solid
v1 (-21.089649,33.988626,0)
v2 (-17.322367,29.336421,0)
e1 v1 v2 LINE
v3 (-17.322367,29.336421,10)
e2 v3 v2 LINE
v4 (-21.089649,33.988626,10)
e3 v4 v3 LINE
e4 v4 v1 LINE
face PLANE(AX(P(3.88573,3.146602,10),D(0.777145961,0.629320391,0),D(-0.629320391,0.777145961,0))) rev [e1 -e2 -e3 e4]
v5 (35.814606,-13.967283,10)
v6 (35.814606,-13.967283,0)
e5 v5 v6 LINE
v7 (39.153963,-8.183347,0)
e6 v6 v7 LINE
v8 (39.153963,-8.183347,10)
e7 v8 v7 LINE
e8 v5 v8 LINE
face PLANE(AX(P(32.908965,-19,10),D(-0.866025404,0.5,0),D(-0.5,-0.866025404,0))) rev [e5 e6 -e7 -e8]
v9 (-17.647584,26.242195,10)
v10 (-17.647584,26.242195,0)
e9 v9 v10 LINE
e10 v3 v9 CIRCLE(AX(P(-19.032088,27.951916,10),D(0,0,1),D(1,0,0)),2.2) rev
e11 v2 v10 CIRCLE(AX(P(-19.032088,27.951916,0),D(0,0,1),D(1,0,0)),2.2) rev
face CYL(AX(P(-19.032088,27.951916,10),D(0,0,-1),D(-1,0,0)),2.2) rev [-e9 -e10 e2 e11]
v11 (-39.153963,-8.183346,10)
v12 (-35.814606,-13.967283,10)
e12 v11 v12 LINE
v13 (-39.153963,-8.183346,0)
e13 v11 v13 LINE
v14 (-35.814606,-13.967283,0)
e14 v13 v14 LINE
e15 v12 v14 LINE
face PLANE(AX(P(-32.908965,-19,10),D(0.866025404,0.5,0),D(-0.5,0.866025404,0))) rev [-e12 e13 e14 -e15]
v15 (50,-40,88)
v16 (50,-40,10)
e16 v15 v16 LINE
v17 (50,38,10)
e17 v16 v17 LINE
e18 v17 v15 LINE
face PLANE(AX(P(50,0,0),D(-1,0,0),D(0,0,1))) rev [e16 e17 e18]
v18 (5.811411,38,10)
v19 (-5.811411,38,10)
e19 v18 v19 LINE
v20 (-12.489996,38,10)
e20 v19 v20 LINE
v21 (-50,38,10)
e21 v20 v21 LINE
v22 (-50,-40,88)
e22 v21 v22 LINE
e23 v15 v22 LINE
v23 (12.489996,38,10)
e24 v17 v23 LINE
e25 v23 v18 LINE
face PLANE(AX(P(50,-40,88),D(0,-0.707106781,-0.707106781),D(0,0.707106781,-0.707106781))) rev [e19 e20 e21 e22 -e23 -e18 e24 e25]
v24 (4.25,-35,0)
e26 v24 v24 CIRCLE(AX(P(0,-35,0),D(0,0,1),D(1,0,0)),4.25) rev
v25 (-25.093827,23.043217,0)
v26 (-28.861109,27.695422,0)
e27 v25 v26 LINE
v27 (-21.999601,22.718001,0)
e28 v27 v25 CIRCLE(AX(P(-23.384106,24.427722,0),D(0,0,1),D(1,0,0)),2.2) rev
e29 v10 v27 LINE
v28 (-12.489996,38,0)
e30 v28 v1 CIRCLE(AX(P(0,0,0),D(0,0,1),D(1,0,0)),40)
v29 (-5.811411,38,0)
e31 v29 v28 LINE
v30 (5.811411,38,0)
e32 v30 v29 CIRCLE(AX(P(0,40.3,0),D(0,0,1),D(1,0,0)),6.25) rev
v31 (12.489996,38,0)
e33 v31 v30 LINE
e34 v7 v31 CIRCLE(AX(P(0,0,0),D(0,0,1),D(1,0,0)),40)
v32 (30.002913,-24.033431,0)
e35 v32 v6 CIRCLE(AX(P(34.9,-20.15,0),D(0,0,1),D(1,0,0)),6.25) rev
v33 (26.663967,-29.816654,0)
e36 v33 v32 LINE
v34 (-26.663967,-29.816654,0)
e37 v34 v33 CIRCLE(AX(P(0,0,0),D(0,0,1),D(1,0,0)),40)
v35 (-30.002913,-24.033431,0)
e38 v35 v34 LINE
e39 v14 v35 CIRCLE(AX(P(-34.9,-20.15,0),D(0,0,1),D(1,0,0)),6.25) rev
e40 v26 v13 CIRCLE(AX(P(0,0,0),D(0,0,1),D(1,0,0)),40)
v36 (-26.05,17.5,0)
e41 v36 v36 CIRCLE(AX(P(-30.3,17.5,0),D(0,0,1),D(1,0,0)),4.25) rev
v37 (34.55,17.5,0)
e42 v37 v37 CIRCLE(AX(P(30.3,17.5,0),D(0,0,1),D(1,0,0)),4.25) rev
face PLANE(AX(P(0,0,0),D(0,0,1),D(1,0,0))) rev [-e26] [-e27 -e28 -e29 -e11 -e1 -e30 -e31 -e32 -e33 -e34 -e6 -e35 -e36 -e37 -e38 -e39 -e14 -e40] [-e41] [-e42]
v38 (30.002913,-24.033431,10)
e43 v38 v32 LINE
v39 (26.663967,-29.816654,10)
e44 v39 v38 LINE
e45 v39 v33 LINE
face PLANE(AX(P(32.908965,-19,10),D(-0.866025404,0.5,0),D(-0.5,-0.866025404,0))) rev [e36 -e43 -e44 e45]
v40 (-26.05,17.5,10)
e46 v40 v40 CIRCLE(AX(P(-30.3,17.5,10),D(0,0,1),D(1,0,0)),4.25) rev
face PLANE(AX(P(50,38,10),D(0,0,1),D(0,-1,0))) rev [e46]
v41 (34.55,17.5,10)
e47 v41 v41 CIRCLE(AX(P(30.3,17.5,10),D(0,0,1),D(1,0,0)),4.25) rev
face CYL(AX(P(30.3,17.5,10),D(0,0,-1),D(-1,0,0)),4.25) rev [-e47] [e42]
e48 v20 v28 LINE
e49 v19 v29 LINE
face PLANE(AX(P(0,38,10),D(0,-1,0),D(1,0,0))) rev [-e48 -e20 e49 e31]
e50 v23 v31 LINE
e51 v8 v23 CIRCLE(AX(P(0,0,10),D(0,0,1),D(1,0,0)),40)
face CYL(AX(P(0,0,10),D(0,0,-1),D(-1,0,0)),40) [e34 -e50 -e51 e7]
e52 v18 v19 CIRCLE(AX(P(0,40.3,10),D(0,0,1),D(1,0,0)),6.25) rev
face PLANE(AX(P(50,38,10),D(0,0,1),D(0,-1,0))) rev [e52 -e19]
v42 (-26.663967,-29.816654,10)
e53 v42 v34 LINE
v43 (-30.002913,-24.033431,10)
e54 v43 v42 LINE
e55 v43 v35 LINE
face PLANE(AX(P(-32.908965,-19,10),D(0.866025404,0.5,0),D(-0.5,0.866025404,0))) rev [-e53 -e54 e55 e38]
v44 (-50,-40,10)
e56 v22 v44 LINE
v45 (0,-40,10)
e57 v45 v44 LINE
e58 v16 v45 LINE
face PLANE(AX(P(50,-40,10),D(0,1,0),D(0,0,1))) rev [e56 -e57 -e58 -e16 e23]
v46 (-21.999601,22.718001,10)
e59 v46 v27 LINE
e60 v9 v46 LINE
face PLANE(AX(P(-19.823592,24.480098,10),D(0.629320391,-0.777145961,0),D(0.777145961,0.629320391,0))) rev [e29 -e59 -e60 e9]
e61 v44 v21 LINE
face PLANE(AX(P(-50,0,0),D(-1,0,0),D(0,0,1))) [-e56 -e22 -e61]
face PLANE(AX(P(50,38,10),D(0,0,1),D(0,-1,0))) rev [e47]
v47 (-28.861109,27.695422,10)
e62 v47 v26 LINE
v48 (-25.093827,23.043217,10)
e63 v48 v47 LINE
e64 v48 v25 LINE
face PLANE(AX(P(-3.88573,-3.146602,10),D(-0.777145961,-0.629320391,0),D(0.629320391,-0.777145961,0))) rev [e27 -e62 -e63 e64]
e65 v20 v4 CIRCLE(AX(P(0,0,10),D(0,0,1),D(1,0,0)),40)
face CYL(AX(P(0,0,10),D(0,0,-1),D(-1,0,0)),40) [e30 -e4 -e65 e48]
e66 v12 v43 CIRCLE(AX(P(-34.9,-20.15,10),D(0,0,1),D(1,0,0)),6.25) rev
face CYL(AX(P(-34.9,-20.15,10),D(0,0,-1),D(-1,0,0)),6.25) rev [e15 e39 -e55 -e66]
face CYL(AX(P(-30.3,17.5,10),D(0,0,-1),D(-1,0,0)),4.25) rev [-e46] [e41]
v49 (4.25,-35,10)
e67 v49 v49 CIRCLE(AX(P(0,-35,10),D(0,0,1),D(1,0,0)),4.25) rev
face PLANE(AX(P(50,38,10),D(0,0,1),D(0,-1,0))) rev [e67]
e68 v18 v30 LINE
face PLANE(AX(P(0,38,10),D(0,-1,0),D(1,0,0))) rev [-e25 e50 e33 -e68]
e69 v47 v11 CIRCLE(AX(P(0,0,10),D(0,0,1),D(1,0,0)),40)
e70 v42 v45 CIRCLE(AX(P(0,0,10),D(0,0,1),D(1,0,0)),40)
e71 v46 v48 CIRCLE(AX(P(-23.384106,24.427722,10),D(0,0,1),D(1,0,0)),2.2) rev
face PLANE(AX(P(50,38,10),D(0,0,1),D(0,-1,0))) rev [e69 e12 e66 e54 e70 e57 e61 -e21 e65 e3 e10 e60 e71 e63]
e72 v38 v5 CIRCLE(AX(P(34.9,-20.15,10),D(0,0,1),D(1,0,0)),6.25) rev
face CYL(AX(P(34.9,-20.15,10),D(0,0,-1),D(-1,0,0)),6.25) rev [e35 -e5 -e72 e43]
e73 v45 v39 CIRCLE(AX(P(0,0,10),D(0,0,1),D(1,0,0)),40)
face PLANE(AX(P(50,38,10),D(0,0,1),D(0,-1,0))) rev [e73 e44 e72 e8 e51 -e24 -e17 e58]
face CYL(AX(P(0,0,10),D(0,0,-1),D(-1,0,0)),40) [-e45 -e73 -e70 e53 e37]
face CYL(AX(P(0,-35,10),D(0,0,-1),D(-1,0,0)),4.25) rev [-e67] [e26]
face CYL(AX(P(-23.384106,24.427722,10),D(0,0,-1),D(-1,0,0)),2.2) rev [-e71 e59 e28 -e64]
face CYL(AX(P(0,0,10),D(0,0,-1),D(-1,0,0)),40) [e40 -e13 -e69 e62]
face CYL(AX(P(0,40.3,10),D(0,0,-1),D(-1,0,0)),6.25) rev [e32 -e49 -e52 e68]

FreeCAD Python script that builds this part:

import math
import FreeCAD as App
import Part
import Sketcher

V = App.Vector
Q = App.Units.Quantity


def add_polygon(sketch, points):
    """Adds a closed chain of lines whose ends are joined by coincident constraints."""
    first, n = sketch.GeometryCount, len(points)
    for a, b in zip(points, points[1:] + points[:1]):
        sketch.addGeometry(Part.LineSegment(App.Vector(*a, 0), App.Vector(*b, 0)), False)
    for i in range(n):
        sketch.addConstraint(Sketcher.Constraint("Coincident", first + i, 2, first + (i + 1) % n, 1))

doc = App.newDocument("Part")
params = doc.addObject("Spreadsheet::Sheet", "Params")
for row, (alias, value) in enumerate([
    ("sketch1_radius", "40 mm"),
    ("sketch1_diameter", "8.5 mm"),
    ("sketch1_radius2", "2.2 mm"),
    ("sketch1_radius3", "6.25 mm"),
    ("sketch1_length", "5.6 mm"),
    ("pad1_length", "10 mm"),
    ("sketch2_width", "78 mm"),
    ("pad2_length", "100 mm"),
], start=1):
    params.set(f"A{row}", alias)
    params.set(f"B{row}", "=" + value)
    params.setAlias(f"B{row}", alias)

body = doc.addObject("PartDesign::Body", "Body")

sketch1 = body.newObject("Sketcher::SketchObject", "Sketch")
sketch1.AttachmentSupport = (doc.getObject("XY_Plane"), [""])
sketch1.MapMode = "FlatFace"
sketch1.addGeometry(Part.ArcOfCircle(Part.Circle(V(0, 40.3, 0), V(0, 0, 1), 6.2), math.radians(-158), math.radians(-22)), False)
sketch1.addGeometry(Part.LineSegment(V(-5.8, 38, 0), V(-12.5, 38, 0)), False)
sketch1.addGeometry(Part.ArcOfCircle(Part.Circle(V(0, 0, 0), V(0, 0, 1), 40), math.radians(108.19), math.radians(121.82)), False)
sketch1.addGeometry(Part.LineSegment(V(-21.1, 34, 0), V(-17.3, 29.3, 0)), False)
sketch1.addGeometry(Part.ArcOfCircle(Part.Circle(V(-19, 28, 0), V(0, 0, 1), 2.2), math.radians(-51), math.radians(39)), False)
sketch1.addGeometry(Part.LineSegment(V(-17.6, 26.2, 0), V(-22, 22.7, 0)), False)
sketch1.addGeometry(Part.ArcOfCircle(Part.Circle(V(-23.4, 24.4, 0), V(0, 0, 1), 2.2), math.radians(-141), math.radians(-51)), False)
sketch1.addGeometry(Part.LineSegment(V(-25.1, 23, 0), V(-28.9, 27.7, 0)), False)
sketch1.addGeometry(Part.ArcOfCircle(Part.Circle(V(0, 0, 0), V(0, 0, 1), 40), math.radians(136), math.radians(192)), False)
sketch1.addGeometry(Part.LineSegment(V(-39.2, -8.2, 0), V(-35.8, -14, 0)), False)
sketch1.addGeometry(Part.ArcOfCircle(Part.Circle(V(-34.9, -20.1, 0), V(0, 0, 1), 6.2), math.radians(-38), math.radians(98)), False)
sketch1.addGeometry(Part.LineSegment(V(-30, -24, 0), V(-26.7, -29.8, 0)), False)
sketch1.addGeometry(Part.ArcOfCircle(Part.Circle(V(0, 0, 0), V(0, 0, 1), 40), math.radians(-132), math.radians(-48)), False)
sketch1.addGeometry(Part.LineSegment(V(26.7, -29.8, 0), V(30, -24, 0)), False)
sketch1.addGeometry(Part.ArcOfCircle(Part.Circle(V(34.9, -20.1, 0), V(0, 0, 1), 6.2), math.radians(82), math.radians(218)), False)
sketch1.addGeometry(Part.LineSegment(V(35.8, -14, 0), V(39.2, -8.2, 0)), False)
sketch1.addGeometry(Part.ArcOfCircle(Part.Circle(V(0, 0, 0), V(0, 0, 1), 40), math.radians(-12), math.radians(72)), False)
sketch1.addGeometry(Part.LineSegment(V(12.5, 38, 0), V(5.8, 38, 0)), False)
sketch1.addGeometry(Part.Circle(V(0, -35, 0), V(0, 0, 1), 4.2), False)
sketch1.addGeometry(Part.Circle(V(-30.3, 17.5, 0), V(0, 0, 1), 4.2), False)
sketch1.addGeometry(Part.Circle(V(30.3, 17.5, 0), V(0, 0, 1), 4.2), False)
sketch1.addConstraint(Sketcher.Constraint("Coincident", 0, 1, 1, 1))
sketch1.addConstraint(Sketcher.Constraint("Coincident", 1, 2, 2, 1))
sketch1.addConstraint(Sketcher.Constraint("Coincident", 2, 2, 3, 1))
sketch1.addConstraint(Sketcher.Constraint("Tangent", 3, 2, 4, 2))
sketch1.addConstraint(Sketcher.Constraint("Tangent", 4, 1, 5, 1))
sketch1.addConstraint(Sketcher.Constraint("Tangent", 5, 2, 6, 2))
sketch1.addConstraint(Sketcher.Constraint("Tangent", 6, 1, 7, 1))
sketch1.addConstraint(Sketcher.Constraint("Coincident", 7, 2, 8, 1))
sketch1.addConstraint(Sketcher.Constraint("Coincident", 8, 2, 9, 1))
sketch1.addConstraint(Sketcher.Constraint("Coincident", 9, 2, 10, 2))
sketch1.addConstraint(Sketcher.Constraint("Coincident", 10, 1, 11, 1))
sketch1.addConstraint(Sketcher.Constraint("Coincident", 11, 2, 12, 1))
sketch1.addConstraint(Sketcher.Constraint("Coincident", 12, 2, 13, 1))
sketch1.addConstraint(Sketcher.Constraint("Coincident", 13, 2, 14, 2))
sketch1.addConstraint(Sketcher.Constraint("Coincident", 14, 1, 15, 1))
sketch1.addConstraint(Sketcher.Constraint("Coincident", 15, 2, 16, 1))
sketch1.addConstraint(Sketcher.Constraint("Coincident", 16, 2, 17, 1))
sketch1.addConstraint(Sketcher.Constraint("Coincident", 17, 2, 0, 2))
sketch1.addConstraint(Sketcher.Constraint("Horizontal", 1))
sketch1.addConstraint(Sketcher.Constraint("Horizontal", 17))
sketch1.addConstraint(Sketcher.Constraint("Coincident", 2, 3, -1, 1))
sketch1.addConstraint(Sketcher.Constraint("Coincident", 8, 3, -1, 1))
sketch1.addConstraint(Sketcher.Constraint("Coincident", 12, 3, -1, 1))
sketch1.addConstraint(Sketcher.Constraint("Coincident", 16, 3, -1, 1))
sketch1.addConstraint(Sketcher.Constraint("Equal", 4, 6))
sketch1.addConstraint(Sketcher.Constraint("Equal", 2, 8))
sketch1.addConstraint(Sketcher.Constraint("Equal", 0, 10))
sketch1.addConstraint(Sketcher.Constraint("Equal", 8, 12))
sketch1.addConstraint(Sketcher.Constraint("Equal", 10, 14))
sketch1.addConstraint(Sketcher.Constraint("Equal", 12, 16))
sketch1.addConstraint(Sketcher.Constraint("Equal", 18, 19))
sketch1.addConstraint(Sketcher.Constraint("Equal", 19, 20))
sketch1.addConstraint(Sketcher.Constraint("Symmetric", 10, 3, 14, 3, -2))
sketch1.addConstraint(Sketcher.Constraint("Symmetric", 19, 3, 20, 3, -2))
sketch1.addConstraint(Sketcher.Constraint("Symmetric", 0, 1, 17, 2, -2))
sketch1.addConstraint(Sketcher.Constraint("PointOnObject", 18, 3, -2))
sketch1.addConstraint(Sketcher.Constraint("Perpendicular", 3, 5))
sketch1.addConstraint(Sketcher.Constraint("Perpendicular", 5, 7))
sketch1.addConstraint(Sketcher.Constraint("Parallel", 9, 11))
sketch1.addConstraint(Sketcher.Constraint("Parallel", 13, 15))
sketch1.addConstraint(Sketcher.Constraint("Horizontal", 11, 2, 12, 2))
sketch1.addConstraint(Sketcher.Constraint("Horizontal", 10, 1, 13, 2))
sketch1.addConstraint(Sketcher.Constraint("Horizontal", 9, 2, 14, 1))
sketch1.addConstraint(Sketcher.Constraint("Equal", 3, 7))
sketch1.addConstraint(Sketcher.Constraint("Radius", 2, Q("40 mm")))
sketch1.addConstraint(Sketcher.Constraint("Diameter", 18, Q("8.5 mm")))
sketch1.addConstraint(Sketcher.Constraint("Radius", 4, Q("2.2 mm")))
sketch1.addConstraint(Sketcher.Constraint("Angle", 3, Q("-51 deg")))
sketch1.addConstraint(Sketcher.Constraint("Angle", 9, Q("-60 deg")))
sketch1.addConstraint(Sketcher.Constraint("Radius", 0, Q("6.25 mm")))
sketch1.addConstraint(Sketcher.Constraint("DistanceY", 18, 3, -1, 1, Q("35 mm")))
sketch1.addConstraint(Sketcher.Constraint("DistanceY", -1, 1, 0, 1, Q("38 mm")))
sketch1.addConstraint(Sketcher.Constraint("Distance", 5, Q("5.6 mm")))
sketch1.addConstraint(Sketcher.Constraint("DistanceY", -1, 1, 0, 3, Q("40.3 mm")))
sketch1.addConstraint(Sketcher.Constraint("DistanceX", 10, 3, -1, 1, Q("34.9 mm")))
sketch1.addConstraint(Sketcher.Constraint("DistanceX", 19, 3, -1, 1, Q("30.3 mm")))
sketch1.addConstraint(Sketcher.Constraint("DistanceY", -1, 1, 19, 3, Q("17.5 mm")))
sketch1.addConstraint(Sketcher.Constraint("DistanceY", 10, 3, -1, 1, Q("20.15 mm")))
sketch1.addConstraint(Sketcher.Constraint("DistanceY", -1, 1, 5, 2, Q("22.718001 mm")))
sketch1.addConstraint(Sketcher.Constraint("Distance", 11, Q("6.677891 mm")))
sketch1.addConstraint(Sketcher.Constraint("DistanceY", 10, 1, 9, 2, Q("10.066148 mm")))
sketch1.setExpression("Constraints[44]", "Params.sketch1_radius")
sketch1.setExpression("Constraints[45]", "Params.sketch1_diameter")
sketch1.setExpression("Constraints[46]", "Params.sketch1_radius2")
sketch1.setExpression("Constraints[49]", "Params.sketch1_radius3")
sketch1.setExpression("Constraints[52]", "Params.sketch1_length")
pad1 = body.newObject("PartDesign::Pad", "Pad")
pad1.Profile = sketch1
pad1.setExpression("Length", "Params.pad1_length")

sketch2 = body.newObject("Sketcher::SketchObject", "Sketch001")
sketch2.AttachmentSupport = (doc.getObject("YZ_Plane"), [""])
sketch2.MapMode = "FlatFace"
add_polygon(sketch2, [(-40, 10), (38, 10), (-40, 88)])
sketch2.addConstraint(Sketcher.Constraint("Horizontal", 0))
sketch2.addConstraint(Sketcher.Constraint("Vertical", 2))
sketch2.addConstraint(Sketcher.Constraint("Equal", 0, 2))
sketch2.addConstraint(Sketcher.Constraint("DistanceX", 0, 1, 0, 2, Q("78 mm")))
sketch2.addConstraint(Sketcher.Constraint("DistanceX", -1, 1, 0, 2, Q("38 mm")))
sketch2.addConstraint(Sketcher.Constraint("DistanceY", -1, 1, 0, 2, Q("10 mm")))
sketch2.setExpression("Constraints[6]", "Params.sketch2_width")
pad2 = body.newObject("PartDesign::Pad", "Pad001")
pad2.Profile = sketch2
pad2.setExpression("Length", "Params.pad2_length")
pad2.Midplane = True

doc.recompute()
